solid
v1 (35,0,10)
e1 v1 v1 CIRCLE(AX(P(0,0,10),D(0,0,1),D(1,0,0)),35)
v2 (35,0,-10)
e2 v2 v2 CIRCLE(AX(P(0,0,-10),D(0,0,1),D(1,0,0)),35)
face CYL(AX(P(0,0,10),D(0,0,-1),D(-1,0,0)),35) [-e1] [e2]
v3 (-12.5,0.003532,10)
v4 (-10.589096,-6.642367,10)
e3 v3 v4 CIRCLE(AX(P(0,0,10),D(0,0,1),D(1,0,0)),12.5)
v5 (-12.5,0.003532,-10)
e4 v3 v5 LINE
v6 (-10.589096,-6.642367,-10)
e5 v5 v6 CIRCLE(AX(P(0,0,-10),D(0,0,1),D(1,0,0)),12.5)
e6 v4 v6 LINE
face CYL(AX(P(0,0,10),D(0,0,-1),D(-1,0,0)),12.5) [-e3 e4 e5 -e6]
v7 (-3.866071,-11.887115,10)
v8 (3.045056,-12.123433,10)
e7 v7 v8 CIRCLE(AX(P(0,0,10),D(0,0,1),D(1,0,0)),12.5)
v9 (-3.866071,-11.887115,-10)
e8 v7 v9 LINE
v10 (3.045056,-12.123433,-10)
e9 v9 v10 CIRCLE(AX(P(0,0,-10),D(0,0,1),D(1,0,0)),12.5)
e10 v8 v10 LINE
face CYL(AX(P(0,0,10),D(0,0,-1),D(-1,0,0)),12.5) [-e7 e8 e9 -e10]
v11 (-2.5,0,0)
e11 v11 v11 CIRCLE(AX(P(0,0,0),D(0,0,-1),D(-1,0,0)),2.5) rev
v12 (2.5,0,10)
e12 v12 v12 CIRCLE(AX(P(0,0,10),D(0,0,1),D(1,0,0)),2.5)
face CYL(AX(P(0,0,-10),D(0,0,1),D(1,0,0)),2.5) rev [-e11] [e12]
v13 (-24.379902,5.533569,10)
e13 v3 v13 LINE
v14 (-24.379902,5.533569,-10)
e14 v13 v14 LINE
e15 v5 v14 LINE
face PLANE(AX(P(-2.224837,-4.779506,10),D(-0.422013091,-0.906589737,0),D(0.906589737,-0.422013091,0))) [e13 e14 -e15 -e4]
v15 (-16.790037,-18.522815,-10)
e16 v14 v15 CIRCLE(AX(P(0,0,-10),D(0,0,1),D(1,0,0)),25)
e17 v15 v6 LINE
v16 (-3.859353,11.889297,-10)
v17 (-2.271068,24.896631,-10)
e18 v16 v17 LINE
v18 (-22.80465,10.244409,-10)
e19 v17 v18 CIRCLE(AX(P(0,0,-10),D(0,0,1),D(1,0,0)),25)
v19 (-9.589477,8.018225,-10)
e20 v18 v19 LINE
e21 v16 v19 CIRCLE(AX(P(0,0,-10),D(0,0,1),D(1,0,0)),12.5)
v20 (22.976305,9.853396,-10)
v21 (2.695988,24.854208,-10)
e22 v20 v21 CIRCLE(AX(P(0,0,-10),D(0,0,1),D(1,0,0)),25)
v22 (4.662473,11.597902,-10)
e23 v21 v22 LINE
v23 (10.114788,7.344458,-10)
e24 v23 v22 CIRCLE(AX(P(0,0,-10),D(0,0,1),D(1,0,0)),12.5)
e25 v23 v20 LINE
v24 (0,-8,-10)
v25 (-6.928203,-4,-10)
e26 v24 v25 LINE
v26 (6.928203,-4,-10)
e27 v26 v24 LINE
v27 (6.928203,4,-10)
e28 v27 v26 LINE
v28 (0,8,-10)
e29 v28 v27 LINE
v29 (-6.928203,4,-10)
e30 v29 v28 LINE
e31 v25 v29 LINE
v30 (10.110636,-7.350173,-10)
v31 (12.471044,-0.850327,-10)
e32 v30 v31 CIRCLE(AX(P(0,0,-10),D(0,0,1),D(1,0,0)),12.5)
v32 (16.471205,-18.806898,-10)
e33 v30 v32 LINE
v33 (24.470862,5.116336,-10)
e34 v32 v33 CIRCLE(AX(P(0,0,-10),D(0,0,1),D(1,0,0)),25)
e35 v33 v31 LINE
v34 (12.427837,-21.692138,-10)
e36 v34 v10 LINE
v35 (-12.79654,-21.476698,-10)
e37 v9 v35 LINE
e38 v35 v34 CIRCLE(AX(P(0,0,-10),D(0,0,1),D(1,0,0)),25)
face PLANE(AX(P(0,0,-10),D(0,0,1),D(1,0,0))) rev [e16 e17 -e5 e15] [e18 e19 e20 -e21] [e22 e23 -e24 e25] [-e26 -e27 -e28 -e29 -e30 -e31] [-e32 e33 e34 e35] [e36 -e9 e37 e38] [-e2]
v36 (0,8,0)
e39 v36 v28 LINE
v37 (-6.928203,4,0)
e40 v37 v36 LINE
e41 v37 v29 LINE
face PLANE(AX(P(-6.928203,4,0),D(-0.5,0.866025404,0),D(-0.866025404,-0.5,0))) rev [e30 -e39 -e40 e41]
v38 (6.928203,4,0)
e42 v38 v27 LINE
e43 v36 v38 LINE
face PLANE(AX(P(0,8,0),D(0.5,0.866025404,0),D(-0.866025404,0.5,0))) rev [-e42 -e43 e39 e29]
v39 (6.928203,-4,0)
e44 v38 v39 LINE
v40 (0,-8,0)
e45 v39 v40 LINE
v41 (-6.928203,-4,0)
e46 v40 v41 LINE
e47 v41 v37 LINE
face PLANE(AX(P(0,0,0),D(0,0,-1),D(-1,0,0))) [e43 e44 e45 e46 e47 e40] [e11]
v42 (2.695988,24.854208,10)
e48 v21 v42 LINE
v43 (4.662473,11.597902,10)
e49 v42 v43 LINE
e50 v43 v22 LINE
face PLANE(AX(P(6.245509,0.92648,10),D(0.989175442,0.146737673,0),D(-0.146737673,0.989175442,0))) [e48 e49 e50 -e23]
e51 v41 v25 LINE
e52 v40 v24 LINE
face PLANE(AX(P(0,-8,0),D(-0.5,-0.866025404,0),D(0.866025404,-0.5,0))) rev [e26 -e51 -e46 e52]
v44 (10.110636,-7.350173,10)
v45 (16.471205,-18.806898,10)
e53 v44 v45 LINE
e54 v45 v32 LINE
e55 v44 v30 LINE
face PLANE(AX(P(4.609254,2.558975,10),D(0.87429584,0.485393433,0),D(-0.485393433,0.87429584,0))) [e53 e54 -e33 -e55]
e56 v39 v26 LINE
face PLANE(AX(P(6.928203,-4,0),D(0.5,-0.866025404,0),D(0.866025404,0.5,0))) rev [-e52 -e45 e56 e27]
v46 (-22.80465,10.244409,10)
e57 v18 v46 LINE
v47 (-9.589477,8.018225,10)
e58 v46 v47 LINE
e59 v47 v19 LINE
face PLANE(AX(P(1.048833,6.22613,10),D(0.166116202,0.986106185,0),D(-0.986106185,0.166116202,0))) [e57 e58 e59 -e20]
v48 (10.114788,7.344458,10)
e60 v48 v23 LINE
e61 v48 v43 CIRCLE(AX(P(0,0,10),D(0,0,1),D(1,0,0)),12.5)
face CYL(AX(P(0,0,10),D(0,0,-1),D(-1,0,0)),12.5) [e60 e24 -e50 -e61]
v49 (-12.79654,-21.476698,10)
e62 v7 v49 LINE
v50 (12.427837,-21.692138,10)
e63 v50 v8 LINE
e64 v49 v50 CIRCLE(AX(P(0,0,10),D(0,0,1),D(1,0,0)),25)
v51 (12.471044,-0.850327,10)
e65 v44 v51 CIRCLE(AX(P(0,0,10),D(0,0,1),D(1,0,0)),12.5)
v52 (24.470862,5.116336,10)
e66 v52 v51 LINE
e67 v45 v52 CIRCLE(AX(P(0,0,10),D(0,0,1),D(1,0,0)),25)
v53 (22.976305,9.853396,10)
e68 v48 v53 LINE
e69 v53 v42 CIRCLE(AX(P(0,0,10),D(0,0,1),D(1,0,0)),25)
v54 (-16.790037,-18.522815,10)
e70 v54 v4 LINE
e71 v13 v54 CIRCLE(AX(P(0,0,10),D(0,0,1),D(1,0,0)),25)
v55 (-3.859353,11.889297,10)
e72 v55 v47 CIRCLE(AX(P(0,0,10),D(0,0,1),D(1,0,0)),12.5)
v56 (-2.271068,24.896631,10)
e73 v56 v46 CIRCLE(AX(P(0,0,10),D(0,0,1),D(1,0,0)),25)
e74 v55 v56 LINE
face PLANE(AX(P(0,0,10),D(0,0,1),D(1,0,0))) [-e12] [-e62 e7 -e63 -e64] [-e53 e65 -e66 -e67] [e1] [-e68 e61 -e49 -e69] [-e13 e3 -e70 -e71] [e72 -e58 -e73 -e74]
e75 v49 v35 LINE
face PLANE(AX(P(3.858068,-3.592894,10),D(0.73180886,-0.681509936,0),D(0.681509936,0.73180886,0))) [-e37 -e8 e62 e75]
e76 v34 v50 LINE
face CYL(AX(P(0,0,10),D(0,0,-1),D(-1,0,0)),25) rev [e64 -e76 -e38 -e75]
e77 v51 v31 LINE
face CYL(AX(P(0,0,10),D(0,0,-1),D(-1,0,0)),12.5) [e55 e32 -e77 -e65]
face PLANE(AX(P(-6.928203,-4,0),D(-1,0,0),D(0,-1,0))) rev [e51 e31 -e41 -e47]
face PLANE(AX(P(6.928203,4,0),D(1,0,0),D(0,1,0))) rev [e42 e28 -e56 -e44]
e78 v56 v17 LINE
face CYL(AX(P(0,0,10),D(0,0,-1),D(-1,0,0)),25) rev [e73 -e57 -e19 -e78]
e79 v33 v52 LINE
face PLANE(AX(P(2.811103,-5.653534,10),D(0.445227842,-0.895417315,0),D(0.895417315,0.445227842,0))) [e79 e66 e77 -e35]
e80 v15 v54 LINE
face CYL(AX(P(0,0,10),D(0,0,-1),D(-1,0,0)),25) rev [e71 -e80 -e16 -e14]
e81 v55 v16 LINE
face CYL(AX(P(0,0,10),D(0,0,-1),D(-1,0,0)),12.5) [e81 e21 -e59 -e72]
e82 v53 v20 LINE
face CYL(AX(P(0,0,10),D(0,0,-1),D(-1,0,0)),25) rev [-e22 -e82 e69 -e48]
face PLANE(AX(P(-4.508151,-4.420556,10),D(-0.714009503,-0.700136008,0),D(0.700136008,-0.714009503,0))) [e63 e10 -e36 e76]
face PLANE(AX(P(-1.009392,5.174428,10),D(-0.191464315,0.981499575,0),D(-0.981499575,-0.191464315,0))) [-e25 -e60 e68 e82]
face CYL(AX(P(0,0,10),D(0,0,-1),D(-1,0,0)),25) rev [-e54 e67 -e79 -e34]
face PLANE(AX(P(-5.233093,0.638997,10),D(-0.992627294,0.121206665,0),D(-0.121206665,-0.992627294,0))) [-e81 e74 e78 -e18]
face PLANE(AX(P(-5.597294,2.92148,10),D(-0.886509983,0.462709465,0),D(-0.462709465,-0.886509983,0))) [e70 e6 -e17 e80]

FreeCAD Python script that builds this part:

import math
import FreeCAD as App
import Part
import Sketcher
Q = App.Units.Quantity

doc = App.newDocument("Part")
params = doc.addObject("Spreadsheet::Sheet", "Params")
for row, (alias, value) in enumerate([
    ("sketch1_diameter", "70 mm"),
    ("sketch1_diameter2", "50 mm"),
    ("pad1_length", "20 mm"),
    ("sketch2_radius", "12.5 mm"),
    ("pad2_length", "20 mm"),
    ("sketch3_diameter", "5 mm"),
    ("sketch4_height", "8 mm"),
    ("sketch4_length", "8 mm"),
    ("pocket2_length", "10 mm"),
], start=1):
    params.set(f"A{row}", alias)
    params.set(f"B{row}", "=" + value)
    params.setAlias(f"B{row}", alias)

body = doc.addObject("PartDesign::Body", "Body")

# Sketch on XY plane
sketch1 = doc.addObject("Sketcher::SketchObject", "Sketch")
body.addObject(sketch1)
sketch1.AttachmentSupport = (doc.XY_Plane, [""])
sketch1.MapMode = "FlatFace"
sketch1.addGeometry(Part.Circle(App.Vector(0, 0, 0), App.Vector(0, 0, 1), 35), False)
sketch1.addGeometry(Part.Circle(App.Vector(0, 0, 0), App.Vector(0, 0, 1), 25), False)
sketch1.addConstraint(Sketcher.Constraint("Coincident", 0, 3, -1, 1))
sketch1.addConstraint(Sketcher.Constraint("Coincident", 1, 3, -1, 1))
sketch1.addConstraint(Sketcher.Constraint("Diameter", 0, Q("70 mm")))
sketch1.addConstraint(Sketcher.Constraint("Diameter", 1, Q("50 mm")))
sketch1.setExpression("Constraints[2]", "Params.sketch1_diameter")
sketch1.setExpression("Constraints[3]", "Params.sketch1_diameter2")
pad1 = doc.addObject("PartDesign::Pad", "Pad")
body.addObject(pad1)
pad1.Profile = sketch1
pad1.setExpression("Length", "Params.pad1_length")
pad1.Midplane = True

# Sketch on XY plane
sketch2 = doc.addObject("Sketcher::SketchObject", "Sketch001")
body.addObject(sketch2)
sketch2.AttachmentSupport = (doc.XY_Plane, [""])
sketch2.MapMode = "FlatFace"
sketch2.addGeometry(Part.LineSegment(App.Vector(4.662473, 11.597902, 0), App.Vector(1.67856, 31.712801, 0)), False)
sketch2.addGeometry(Part.LineSegment(App.Vector(1.67856, 31.712801, 0), App.Vector(-1.438766, 31.712801, 0)), False)
sketch2.addGeometry(Part.LineSegment(App.Vector(-1.438766, 31.712801, 0), App.Vector(-3.859353, 11.889297, 0)), False)
sketch2.addGeometry(Part.ArcOfCircle(Part.Circle(App.Vector(0, 0, 0), App.Vector(0, 0, 1), 12.5), math.radians(107.98381), math.radians(428.099377)), False)
sketch2.addConstraint(Sketcher.Constraint("Coincident", 0, 2, 1, 1))
sketch2.addConstraint(Sketcher.Constraint("Coincident", 1, 2, 2, 1))
sketch2.addConstraint(Sketcher.Constraint("Coincident", 2, 2, 3, 1))
sketch2.addConstraint(Sketcher.Constraint("Coincident", 3, 2, 0, 1))
sketch2.addConstraint(Sketcher.Constraint("Horizontal", 1))
sketch2.addConstraint(Sketcher.Constraint("Coincident", 3, 3, -1, 1))
sketch2.addConstraint(Sketcher.Constraint("Radius", 3, Q("12.5 mm")))
sketch2.addConstraint(Sketcher.Constraint("DistanceY", -1, 1, 0, 2, Q("31.712801 mm")))
sketch2.addConstraint(Sketcher.Constraint("DistanceY", 3, 2, 0, 2, Q("20.114899 mm")))
sketch2.addConstraint(Sketcher.Constraint("DistanceX", 1, 2, 1, 1, Q("3.117326 mm")))
sketch2.addConstraint(Sketcher.Constraint("DistanceX", -1, 1, 0, 2, Q("1.67856 mm")))
sketch2.addConstraint(Sketcher.Constraint("Distance", 2, Q("19.970742 mm")))
sketch2.setExpression("Constraints[6]", "Params.sketch2_radius")
pad2 = doc.addObject("PartDesign::Pad", "Pad001")
body.addObject(pad2)
pad2.Profile = sketch2
pad2.setExpression("Length", "Params.pad2_length")
pad2.Midplane = True
doc.recompute()

polarpattern = doc.addObject("PartDesign::PolarPattern", "PolarPattern")
body.addObject(polarpattern)
polarpattern.Originals = [pad2]
polarpattern.Axis = (doc.Z_Axis, [""])
polarpattern.Angle = 360
polarpattern.Occurrences = 5
body.Tip = polarpattern

# Sketch on XY plane
sketch3 = doc.addObject("Sketcher::SketchObject", "Sketch002")
body.addObject(sketch3)
sketch3.AttachmentSupport = (doc.XY_Plane, [""])
sketch3.MapMode = "FlatFace"
sketch3.AttachmentOffset = App.Placement(App.Vector(0, 0, 10), App.Rotation())
sketch3.addGeometry(Part.Circle(App.Vector(0, 0, 0), App.Vector(0, 0, 1), 2.5), False)
sketch3.addConstraint(Sketcher.Constraint("Coincident", 0, 3, -1, 1))
sketch3.addConstraint(Sketcher.Constraint("Diameter", 0, Q("5 mm")))
sketch3.setExpression("Constraints[1]", "Params.sketch3_diameter")
pocket1 = doc.addObject("PartDesign::Pocket", "Pocket")
body.addObject(pocket1)
pocket1.Profile = sketch3
pocket1.Type = "ThroughAll"

# Sketch on XY plane
sketch4 = doc.addObject("Sketcher::SketchObject", "Sketch003")
body.addObject(sketch4)
sketch4.AttachmentSupport = (doc.XY_Plane, [""])
sketch4.MapMode = "FlatFace"
sketch4.AttachmentOffset = App.Placement(App.Vector(0, 0, -10), App.Rotation())
sketch4.addGeometry(Part.LineSegment(App.Vector(0, 8, 0), App.Vector(6.928203, 4, 0)), False)
sketch4.addGeometry(Part.LineSegment(App.Vector(6.928203, 4, 0), App.Vector(6.928203, -4, 0)), False)
sketch4.addGeometry(Part.LineSegment(App.Vector(6.928203, -4, 0), App.Vector(0, -8, 0)), False)
sketch4.addGeometry(Part.LineSegment(App.Vector(0, -8, 0), App.Vector(-6.928203, -4, 0)), False)
sketch4.addGeometry(Part.LineSegment(App.Vector(-6.928203, -4, 0), App.Vector(-6.928203, 4, 0)), False)
sketch4.addGeometry(Part.LineSegment(App.Vector(-6.928203, 4, 0), App.Vector(0, 8, 0)), False)
sketch4.addConstraint(Sketcher.Constraint("Coincident", 0, 2, 1, 1))
sketch4.addConstraint(Sketcher.Constraint("Coincident", 1, 2, 2, 1))
sketch4.addConstraint(Sketcher.Constraint("Coincident", 2, 2, 3, 1))
sketch4.addConstraint(Sketcher.Constraint("Coincident", 3, 2, 4, 1))
sketch4.addConstraint(Sketcher.Constraint("Coincident", 4, 2, 5, 1))
sketch4.addConstraint(Sketcher.Constraint("Coincident", 5, 2, 0, 1))
sketch4.addConstraint(Sketcher.Constraint("Vertical", 1))
sketch4.addConstraint(Sketcher.Constraint("Vertical", 4))
sketch4.addConstraint(Sketcher.Constraint("Symmetric", 0, 2, 3, 2, -1, 1))
sketch4.addConstraint(Sketcher.Constraint("Symmetric", 2, 2, 5, 2, -1, 1))
sketch4.addConstraint(Sketcher.Constraint("PointOnObject", 2, 2, -2))
sketch4.addConstraint(Sketcher.Constraint("Parallel", 2, 5))
sketch4.addConstraint(Sketcher.Constraint("Horizontal", 1, 2, 3, 2))
sketch4.addConstraint(Sketcher.Constraint("DistanceY", 1, 2, 1, 1, Q("8 mm")))
sketch4.addConstraint(Sketcher.Constraint("Angle", 0, Q("-30 deg")))
sketch4.addConstraint(Sketcher.Constraint("Distance", 0, Q("8 mm")))
sketch4.setExpression("Constraints[13]", "Params.sketch4_height")
sketch4.setExpression("Constraints[15]", "Params.sketch4_length")
pocket2 = doc.addObject("PartDesign::Pocket", "Pocket001")
body.addObject(pocket2)
pocket2.Profile = sketch4
pocket2.setExpression("Length", "Params.pocket2_length")
pocket2.Reversed = True

doc.recompute()
